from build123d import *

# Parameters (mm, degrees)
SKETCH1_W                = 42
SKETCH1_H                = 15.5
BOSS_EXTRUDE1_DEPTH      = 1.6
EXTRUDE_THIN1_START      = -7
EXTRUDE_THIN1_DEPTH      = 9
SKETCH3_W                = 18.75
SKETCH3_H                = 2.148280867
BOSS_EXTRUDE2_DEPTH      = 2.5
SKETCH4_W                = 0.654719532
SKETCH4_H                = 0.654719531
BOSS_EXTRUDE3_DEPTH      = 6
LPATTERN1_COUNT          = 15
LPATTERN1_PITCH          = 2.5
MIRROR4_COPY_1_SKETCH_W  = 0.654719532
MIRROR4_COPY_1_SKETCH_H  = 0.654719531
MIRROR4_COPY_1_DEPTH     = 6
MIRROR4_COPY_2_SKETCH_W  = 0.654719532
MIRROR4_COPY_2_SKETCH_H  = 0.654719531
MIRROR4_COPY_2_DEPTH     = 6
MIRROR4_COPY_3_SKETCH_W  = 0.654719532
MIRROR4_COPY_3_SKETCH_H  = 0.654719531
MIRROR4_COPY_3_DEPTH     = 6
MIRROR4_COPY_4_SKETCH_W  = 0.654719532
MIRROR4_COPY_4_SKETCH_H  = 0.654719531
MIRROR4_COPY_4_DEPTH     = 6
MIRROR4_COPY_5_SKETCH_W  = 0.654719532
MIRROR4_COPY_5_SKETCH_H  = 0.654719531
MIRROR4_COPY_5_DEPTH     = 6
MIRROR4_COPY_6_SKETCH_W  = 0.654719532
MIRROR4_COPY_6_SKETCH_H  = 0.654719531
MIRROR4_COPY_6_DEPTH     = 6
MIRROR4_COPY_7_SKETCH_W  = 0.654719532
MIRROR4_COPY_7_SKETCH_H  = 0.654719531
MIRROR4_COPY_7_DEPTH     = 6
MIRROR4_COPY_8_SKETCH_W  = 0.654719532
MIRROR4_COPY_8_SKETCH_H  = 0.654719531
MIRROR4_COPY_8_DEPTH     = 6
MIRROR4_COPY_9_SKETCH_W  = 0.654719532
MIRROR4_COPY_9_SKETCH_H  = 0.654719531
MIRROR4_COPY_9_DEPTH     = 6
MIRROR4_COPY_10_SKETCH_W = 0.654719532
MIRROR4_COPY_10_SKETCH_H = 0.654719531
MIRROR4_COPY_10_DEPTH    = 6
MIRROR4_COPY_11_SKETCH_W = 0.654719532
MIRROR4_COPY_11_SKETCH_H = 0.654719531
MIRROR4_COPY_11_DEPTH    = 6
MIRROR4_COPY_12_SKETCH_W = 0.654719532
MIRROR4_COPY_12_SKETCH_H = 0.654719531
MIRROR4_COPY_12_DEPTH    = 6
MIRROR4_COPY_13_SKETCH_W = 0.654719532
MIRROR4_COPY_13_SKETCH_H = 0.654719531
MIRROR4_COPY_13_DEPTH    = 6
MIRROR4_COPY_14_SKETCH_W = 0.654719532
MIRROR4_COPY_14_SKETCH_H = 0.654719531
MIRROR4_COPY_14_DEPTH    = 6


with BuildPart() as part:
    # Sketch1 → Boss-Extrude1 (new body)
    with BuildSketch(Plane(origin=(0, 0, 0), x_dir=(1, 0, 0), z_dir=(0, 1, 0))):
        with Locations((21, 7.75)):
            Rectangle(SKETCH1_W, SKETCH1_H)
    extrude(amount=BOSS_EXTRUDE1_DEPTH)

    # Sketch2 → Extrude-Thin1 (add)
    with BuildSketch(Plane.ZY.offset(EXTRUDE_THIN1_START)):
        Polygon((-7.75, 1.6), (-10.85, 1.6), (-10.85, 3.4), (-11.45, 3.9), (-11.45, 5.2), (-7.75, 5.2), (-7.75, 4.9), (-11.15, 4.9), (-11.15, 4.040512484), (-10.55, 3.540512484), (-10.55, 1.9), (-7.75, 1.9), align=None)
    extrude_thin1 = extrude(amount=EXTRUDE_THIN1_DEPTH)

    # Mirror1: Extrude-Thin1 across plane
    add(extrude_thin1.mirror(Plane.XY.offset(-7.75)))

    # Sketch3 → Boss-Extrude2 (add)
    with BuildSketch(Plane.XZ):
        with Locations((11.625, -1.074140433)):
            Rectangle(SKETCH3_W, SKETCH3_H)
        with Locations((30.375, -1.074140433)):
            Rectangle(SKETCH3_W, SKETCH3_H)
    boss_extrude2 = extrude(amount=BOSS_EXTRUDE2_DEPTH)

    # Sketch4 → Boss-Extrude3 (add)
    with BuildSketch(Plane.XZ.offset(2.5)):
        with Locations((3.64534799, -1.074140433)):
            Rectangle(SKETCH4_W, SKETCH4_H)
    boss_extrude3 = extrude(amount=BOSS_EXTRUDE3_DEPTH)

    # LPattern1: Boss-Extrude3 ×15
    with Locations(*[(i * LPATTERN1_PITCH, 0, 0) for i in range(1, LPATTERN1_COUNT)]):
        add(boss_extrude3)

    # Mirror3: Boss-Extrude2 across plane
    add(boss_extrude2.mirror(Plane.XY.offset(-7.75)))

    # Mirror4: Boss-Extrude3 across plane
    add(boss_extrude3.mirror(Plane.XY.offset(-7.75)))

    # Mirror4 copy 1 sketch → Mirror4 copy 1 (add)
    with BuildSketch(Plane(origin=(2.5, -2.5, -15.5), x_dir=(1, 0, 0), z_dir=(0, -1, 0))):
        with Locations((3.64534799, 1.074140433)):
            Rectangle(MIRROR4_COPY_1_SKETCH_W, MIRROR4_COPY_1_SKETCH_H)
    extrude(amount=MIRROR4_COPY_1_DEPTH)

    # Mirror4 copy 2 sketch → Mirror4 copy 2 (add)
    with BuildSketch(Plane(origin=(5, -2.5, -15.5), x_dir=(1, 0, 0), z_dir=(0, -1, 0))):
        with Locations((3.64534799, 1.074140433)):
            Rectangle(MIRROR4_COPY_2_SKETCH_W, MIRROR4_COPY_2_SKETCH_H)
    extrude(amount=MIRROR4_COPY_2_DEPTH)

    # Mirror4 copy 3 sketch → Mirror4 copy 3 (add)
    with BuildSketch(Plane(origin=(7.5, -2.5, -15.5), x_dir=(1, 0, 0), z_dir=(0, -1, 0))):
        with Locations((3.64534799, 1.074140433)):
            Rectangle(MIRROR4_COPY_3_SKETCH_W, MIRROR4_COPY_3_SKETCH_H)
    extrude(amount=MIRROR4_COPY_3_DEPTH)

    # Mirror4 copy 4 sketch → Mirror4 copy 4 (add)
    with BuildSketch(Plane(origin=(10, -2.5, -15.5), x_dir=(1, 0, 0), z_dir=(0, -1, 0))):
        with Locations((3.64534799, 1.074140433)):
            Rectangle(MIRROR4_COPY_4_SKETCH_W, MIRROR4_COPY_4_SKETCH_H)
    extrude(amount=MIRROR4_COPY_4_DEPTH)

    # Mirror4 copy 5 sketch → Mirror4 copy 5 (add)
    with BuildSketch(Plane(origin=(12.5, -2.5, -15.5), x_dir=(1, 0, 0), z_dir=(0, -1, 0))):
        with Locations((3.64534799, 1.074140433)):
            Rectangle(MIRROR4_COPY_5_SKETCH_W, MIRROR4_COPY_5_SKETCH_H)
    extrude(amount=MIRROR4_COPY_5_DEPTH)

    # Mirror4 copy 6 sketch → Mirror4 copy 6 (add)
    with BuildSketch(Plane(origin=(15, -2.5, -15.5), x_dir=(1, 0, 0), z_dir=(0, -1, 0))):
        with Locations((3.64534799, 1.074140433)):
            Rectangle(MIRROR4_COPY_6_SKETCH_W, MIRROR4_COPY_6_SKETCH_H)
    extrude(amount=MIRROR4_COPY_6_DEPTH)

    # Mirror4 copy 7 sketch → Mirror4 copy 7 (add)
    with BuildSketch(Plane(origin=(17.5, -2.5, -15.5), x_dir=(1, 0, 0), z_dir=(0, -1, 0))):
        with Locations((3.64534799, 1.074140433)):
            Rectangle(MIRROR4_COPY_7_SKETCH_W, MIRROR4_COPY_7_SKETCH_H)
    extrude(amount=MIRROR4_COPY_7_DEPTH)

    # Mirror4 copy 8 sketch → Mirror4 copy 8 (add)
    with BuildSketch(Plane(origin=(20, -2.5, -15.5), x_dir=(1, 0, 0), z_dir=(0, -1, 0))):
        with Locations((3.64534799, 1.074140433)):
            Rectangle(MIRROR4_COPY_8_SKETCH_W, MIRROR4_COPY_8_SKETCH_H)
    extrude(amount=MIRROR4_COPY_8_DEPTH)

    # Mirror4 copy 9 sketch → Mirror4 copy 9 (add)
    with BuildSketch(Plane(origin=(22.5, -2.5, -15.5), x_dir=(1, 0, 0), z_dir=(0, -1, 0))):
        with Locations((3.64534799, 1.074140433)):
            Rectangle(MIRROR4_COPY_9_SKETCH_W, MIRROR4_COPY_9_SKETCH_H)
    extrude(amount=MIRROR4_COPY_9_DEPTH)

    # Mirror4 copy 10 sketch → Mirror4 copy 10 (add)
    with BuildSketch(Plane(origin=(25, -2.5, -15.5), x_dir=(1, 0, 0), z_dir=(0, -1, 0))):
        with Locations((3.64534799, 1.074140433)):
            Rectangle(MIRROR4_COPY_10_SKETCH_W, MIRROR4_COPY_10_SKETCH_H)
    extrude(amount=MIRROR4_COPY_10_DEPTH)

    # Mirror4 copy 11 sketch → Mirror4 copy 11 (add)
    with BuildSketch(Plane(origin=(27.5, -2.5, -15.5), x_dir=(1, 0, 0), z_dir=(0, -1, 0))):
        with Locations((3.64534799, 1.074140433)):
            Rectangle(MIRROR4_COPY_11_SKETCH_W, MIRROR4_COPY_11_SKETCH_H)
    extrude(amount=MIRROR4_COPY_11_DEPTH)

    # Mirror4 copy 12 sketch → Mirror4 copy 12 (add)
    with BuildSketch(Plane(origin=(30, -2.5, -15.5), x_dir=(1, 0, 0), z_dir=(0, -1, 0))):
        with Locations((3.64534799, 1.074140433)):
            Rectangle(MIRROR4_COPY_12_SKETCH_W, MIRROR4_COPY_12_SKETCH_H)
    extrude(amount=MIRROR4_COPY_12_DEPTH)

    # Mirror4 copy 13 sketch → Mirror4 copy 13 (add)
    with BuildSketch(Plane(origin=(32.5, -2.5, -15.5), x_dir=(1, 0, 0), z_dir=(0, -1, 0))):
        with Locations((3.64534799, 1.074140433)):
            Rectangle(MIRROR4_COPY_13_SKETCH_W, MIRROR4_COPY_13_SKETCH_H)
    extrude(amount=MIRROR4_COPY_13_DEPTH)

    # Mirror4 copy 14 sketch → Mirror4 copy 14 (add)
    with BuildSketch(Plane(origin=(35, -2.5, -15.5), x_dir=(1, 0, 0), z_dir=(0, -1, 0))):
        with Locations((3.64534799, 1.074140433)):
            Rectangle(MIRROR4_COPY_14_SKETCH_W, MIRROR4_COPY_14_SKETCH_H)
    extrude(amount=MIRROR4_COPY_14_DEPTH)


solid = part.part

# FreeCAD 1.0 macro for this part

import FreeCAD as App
import Part
import Sketcher


def add_polygon(sketch, points):
    """Adds a closed chain of lines whose ends are joined by coincident constraints."""
    first, n = sketch.GeometryCount, len(points)
    for a, b in zip(points, points[1:] + points[:1]):
        sketch.addGeometry(Part.LineSegment(App.Vector(*a, 0), App.Vector(*b, 0)), False)
    for i in range(n):
        sketch.addConstraint(Sketcher.Constraint("Coincident", first + i, 2, first + (i + 1) % n, 1))

doc = App.newDocument("Part")
body = doc.addObject("PartDesign::Body", "Body")

# Sketch on XZ plane
sketch1 = body.newObject("Sketcher::SketchObject", "Sketch")
sketch1.AttachmentSupport = (doc.getObject("XZ_Plane"), [""])
sketch1.MapMode = "FlatFace"
add_polygon(sketch1, [(0, -16), (0, 0), (42, 0), (42, -16)])  # lines 0-3
sketch1.addConstraint(Sketcher.Constraint("Vertical", 0))
sketch1.addConstraint(Sketcher.Constraint("Horizontal", 1))
sketch1.addConstraint(Sketcher.Constraint("Vertical", 2))
sketch1.addConstraint(Sketcher.Constraint("Horizontal", 3))
sketch1.addConstraint(Sketcher.Constraint("Coincident", 0, 2, -1, 1))
sketch1.addConstraint(Sketcher.Constraint("DistanceX", 1, 1, 1, 2, 42.0))
sketch1.addConstraint(Sketcher.Constraint("DistanceY", 0, 1, 0, 2, 15.5))
pad1 = body.newObject("PartDesign::Pad", "Pad")
pad1.Profile = sketch1
pad1.Length = 1.6
pad1.Reversed = True

# Sketch on YZ plane
sketch2 = body.newObject("Sketcher::SketchObject", "Sketch001")
sketch2.AttachmentSupport = (doc.getObject("YZ_Plane"), [""])
sketch2.MapMode = "FlatFace"
sketch2.AttachmentOffset = App.Placement(App.Vector(0, 0, 7), App.Rotation())
add_polygon(sketch2, [(1.6, -10.85), (1.6, -7.75), (1.9, -7.75), (1.9, -10.55), (3.54, -10.55), (4.04, -11.15), (4.9, -11.15), (4.9, -7.75), (5.2, -7.75), (5.2, -11.45), (3.9, -11.45), (3.4, -10.85)])  # lines 0-11
sketch2.addConstraint(Sketcher.Constraint("Vertical", 0))
sketch2.addConstraint(Sketcher.Constraint("Horizontal", 1))
sketch2.addConstraint(Sketcher.Constraint("Vertical", 2))
sketch2.addConstraint(Sketcher.Constraint("Horizontal", 3))
sketch2.addConstraint(Sketcher.Constraint("Horizontal", 5))
sketch2.addConstraint(Sketcher.Constraint("Vertical", 6))
sketch2.addConstraint(Sketcher.Constraint("Horizontal", 7))
sketch2.addConstraint(Sketcher.Constraint("Vertical", 8))
sketch2.addConstraint(Sketcher.Constraint("Horizontal", 9))
sketch2.addConstraint(Sketcher.Constraint("Horizontal", 11))
sketch2.addConstraint(Sketcher.Constraint("Parallel", 4, 10))
sketch2.addConstraint(Sketcher.Constraint("Horizontal", 1, 2, 6, 2))
sketch2.addConstraint(Sketcher.Constraint("Equal", 1, 7))
sketch2.addConstraint(Sketcher.Constraint("Equal", 4, 10))
sketch2.addConstraint(Sketcher.Constraint("DistanceX", 1, 1, 1, 2, 0.3))
sketch2.addConstraint(Sketcher.Constraint("DistanceX", 9, 2, 9, 1, 1.3))
sketch2.addConstraint(Sketcher.Constraint("DistanceX", 11, 2, 11, 1, 1.8))
sketch2.addConstraint(Sketcher.Constraint("DistanceY", 0, 1, 0, 2, 3.1))
sketch2.addConstraint(Sketcher.Constraint("DistanceY", 2, 2, 2, 1, 2.8))
sketch2.addConstraint(Sketcher.Constraint("DistanceY", 6, 1, 6, 2, 3.4))
sketch2.addConstraint(Sketcher.Constraint("DistanceX", 2, 2, 5, 2, 3.0))
sketch2.addConstraint(Sketcher.Constraint("DistanceX", -1, 1, 0, 2, 1.6))
sketch2.addConstraint(Sketcher.Constraint("DistanceY", 0, 2, -1, 1, 7.75))
sketch2.addConstraint(Sketcher.Constraint("DistanceX", 3, 1, 3, 2, 1.640512))
pad2 = body.newObject("PartDesign::Pad", "Pad001")
pad2.Profile = sketch2
pad2.Length = 9
pad2.Reversed = True
doc.recompute()

datumplane = body.newObject("PartDesign::Plane", "DatumPlane")
datumplane.AttachmentSupport = (doc.getObject("XY_Plane"), [""])
datumplane.MapMode = "FlatFace"
datumplane.AttachmentOffset = App.Placement(App.Vector(0, 0, -7.75), App.Rotation())
mirrored = body.newObject("PartDesign::Mirrored", "Mirrored")
mirrored.Originals = [pad2]
mirrored.MirrorPlane = (datumplane, [""])
body.Tip = mirrored

# Sketch on XZ plane
sketch3 = body.newObject("Sketcher::SketchObject", "Sketch002")
sketch3.AttachmentSupport = (doc.getObject("XZ_Plane"), [""])
sketch3.MapMode = "FlatFace"
add_polygon(sketch3, [(2.2, 0), (2.2, -2.1), (39.8, -2.1), (39.8, 0)])  # lines 0-3
sketch3.addConstraint(Sketcher.Constraint("Vertical", 0))
sketch3.addConstraint(Sketcher.Constraint("Horizontal", 1))
sketch3.addConstraint(Sketcher.Constraint("Vertical", 2))
sketch3.addConstraint(Sketcher.Constraint("Horizontal", 3))
sketch3.addConstraint(Sketcher.Constraint("PointOnObject", 2, 2, -1))
sketch3.addConstraint(Sketcher.Constraint("DistanceX", 1, 1, 1, 2, 37.5))
sketch3.addConstraint(Sketcher.Constraint("DistanceX", -1, 1, 0, 2, 2.25))
sketch3.addConstraint(Sketcher.Constraint("DistanceY", 0, 2, 0, 1, 2.148281))
pad3 = body.newObject("PartDesign::Pad", "Pad002")
pad3.Profile = sketch3
pad3.Length = 2.5

# Sketch on XZ plane
sketch4 = body.newObject("Sketcher::SketchObject", "Sketch003")
sketch4.AttachmentSupport = (doc.getObject("XZ_Plane"), [""])
sketch4.MapMode = "FlatFace"
sketch4.AttachmentOffset = App.Placement(App.Vector(0, 0, 2.5), App.Rotation())
add_polygon(sketch4, [(3.3, -0.7), (3.3, -1.4), (4, -1.4), (4, -0.7)])  # lines 0-3
sketch4.addConstraint(Sketcher.Constraint("Vertical", 0))
sketch4.addConstraint(Sketcher.Constraint("Horizontal", 1))
sketch4.addConstraint(Sketcher.Constraint("Vertical", 2))
sketch4.addConstraint(Sketcher.Constraint("Horizontal", 3))
sketch4.addConstraint(Sketcher.Constraint("Equal", 3, 0))
sketch4.addConstraint(Sketcher.Constraint("DistanceX", 1, 1, 1, 2, 0.65472))
sketch4.addConstraint(Sketcher.Constraint("DistanceY", 0, 2, -1, 1, 1.4015))
sketch4.addConstraint(Sketcher.Constraint("DistanceX", -1, 1, 0, 2, 3.317988))
pad4 = body.newObject("PartDesign::Pad", "Pad003")
pad4.Profile = sketch4
pad4.Length = 6
doc.recompute()

linearpattern = body.newObject("PartDesign::LinearPattern", "LinearPattern")
linearpattern.Originals = [pad4]
linearpattern.Direction = (doc.getObject("X_Axis"), [""])
linearpattern.Mode = "offset"
linearpattern.Offset = 2.5
linearpattern.Occurrences = 15
body.Tip = linearpattern
doc.recompute()

datumplane2 = body.newObject("PartDesign::Plane", "DatumPlane001")
datumplane2.AttachmentSupport = (doc.getObject("XY_Plane"), [""])
datumplane2.MapMode = "FlatFace"
datumplane2.AttachmentOffset = App.Placement(App.Vector(0, 0, -7.75), App.Rotation())
mirrored2 = body.newObject("PartDesign::Mirrored", "Mirrored001")
mirrored2.Originals = [pad3]
mirrored2.MirrorPlane = (datumplane2, [""])
body.Tip = mirrored2
doc.recompute()

datumplane3 = body.newObject("PartDesign::Plane", "DatumPlane002")
datumplane3.AttachmentSupport = (doc.getObject("XY_Plane"), [""])
datumplane3.MapMode = "FlatFace"
datumplane3.AttachmentOffset = App.Placement(App.Vector(0, 0, -7.75), App.Rotation())
mirrored3 = body.newObject("PartDesign::Mirrored", "Mirrored002")
mirrored3.Originals = [pad4]
mirrored3.MirrorPlane = (datumplane3, [""])
body.Tip = mirrored3

# Sketch on XZ plane
sketch5 = body.newObject("Sketcher::SketchObject", "Sketch004")
sketch5.AttachmentSupport = (doc.getObject("XZ_Plane"), [""])
sketch5.MapMode = "FlatFace"
sketch5.AttachmentOffset = App.Placement(App.Vector(0, 0, 2.5), App.Rotation())
add_polygon(sketch5, [(5.8, -14.1), (5.8, -14.8), (6.5, -14.8), (6.5, -14.1)])  # lines 0-3
sketch5.addConstraint(Sketcher.Constraint("Vertical", 0))
sketch5.addConstraint(Sketcher.Constraint("Horizontal", 1))
sketch5.addConstraint(Sketcher.Constraint("Vertical", 2))
sketch5.addConstraint(Sketcher.Constraint("Horizontal", 3))
sketch5.addConstraint(Sketcher.Constraint("Equal", 3, 0))
sketch5.addConstraint(Sketcher.Constraint("DistanceX", 1, 1, 1, 2, 0.65472))
sketch5.addConstraint(Sketcher.Constraint("DistanceY", 2, 2, -1, 1, 14.0985))
sketch5.addConstraint(Sketcher.Constraint("DistanceX", -1, 1, 0, 2, 5.817988))
pad5 = body.newObject("PartDesign::Pad", "Pad004")
pad5.Profile = sketch5
pad5.Length = 6

# Sketch on XZ plane
sketch6 = body.newObject("Sketcher::SketchObject", "Sketch005")
sketch6.AttachmentSupport = (doc.getObject("XZ_Plane"), [""])
sketch6.MapMode = "FlatFace"
sketch6.AttachmentOffset = App.Placement(App.Vector(0, 0, 2.5), App.Rotation())
add_polygon(sketch6, [(8.3, -14.1), (8.3, -14.8), (9, -14.8), (9, -14.1)])  # lines 0-3
sketch6.addConstraint(Sketcher.Constraint("Vertical", 0))
sketch6.addConstraint(Sketcher.Constraint("Horizontal", 1))
sketch6.addConstraint(Sketcher.Constraint("Vertical", 2))
sketch6.addConstraint(Sketcher.Constraint("Horizontal", 3))
sketch6.addConstraint(Sketcher.Constraint("Equal", 3, 0))
sketch6.addConstraint(Sketcher.Constraint("DistanceX", 1, 1, 1, 2, 0.65472))
sketch6.addConstraint(Sketcher.Constraint("DistanceY", 2, 2, -1, 1, 14.0985))
sketch6.addConstraint(Sketcher.Constraint("DistanceX", -1, 1, 0, 2, 8.317988))
pad6 = body.newObject("PartDesign::Pad", "Pad005")
pad6.Profile = sketch6
pad6.Length = 6

# Sketch on XZ plane
sketch7 = body.newObject("Sketcher::SketchObject", "Sketch006")
sketch7.AttachmentSupport = (doc.getObject("XZ_Plane"), [""])
sketch7.MapMode = "FlatFace"
sketch7.AttachmentOffset = App.Placement(App.Vector(0, 0, 2.5), App.Rotation())
add_polygon(sketch7, [(10.8, -14.1), (10.8, -14.8), (11.5, -14.8), (11.5, -14.1)])  # lines 0-3
sketch7.addConstraint(Sketcher.Constraint("Vertical", 0))
sketch7.addConstraint(Sketcher.Constraint("Horizontal", 1))
sketch7.addConstraint(Sketcher.Constraint("Vertical", 2))
sketch7.addConstraint(Sketcher.Constraint("Horizontal", 3))
sketch7.addConstraint(Sketcher.Constraint("Equal", 3, 0))
sketch7.addConstraint(Sketcher.Constraint("DistanceX", 1, 1, 1, 2, 0.65472))
sketch7.addConstraint(Sketcher.Constraint("DistanceY", 2, 2, -1, 1, 14.0985))
sketch7.addConstraint(Sketcher.Constraint("DistanceX", -1, 1, 0, 2, 10.817988))
pad7 = body.newObject("PartDesign::Pad", "Pad006")
pad7.Profile = sketch7
pad7.Length = 6

# Sketch on XZ plane
sketch8 = body.newObject("Sketcher::SketchObject", "Sketch007")
sketch8.AttachmentSupport = (doc.getObject("XZ_Plane"), [""])
sketch8.MapMode = "FlatFace"
sketch8.AttachmentOffset = App.Placement(App.Vector(0, 0, 2.5), App.Rotation())
add_polygon(sketch8, [(13.3, -14.1), (13.3, -14.8), (14, -14.8), (14, -14.1)])  # lines 0-3
sketch8.addConstraint(Sketcher.Constraint("Vertical", 0))
sketch8.addConstraint(Sketcher.Constraint("Horizontal", 1))
sketch8.addConstraint(Sketcher.Constraint("Vertical", 2))
sketch8.addConstraint(Sketcher.Constraint("Horizontal", 3))
sketch8.addConstraint(Sketcher.Constraint("Equal", 3, 0))
sketch8.addConstraint(Sketcher.Constraint("DistanceX", 1, 1, 1, 2, 0.65472))
sketch8.addConstraint(Sketcher.Constraint("DistanceY", 2, 2, -1, 1, 14.0985))
sketch8.addConstraint(Sketcher.Constraint("DistanceX", -1, 1, 0, 2, 13.317988))
pad8 = body.newObject("PartDesign::Pad", "Pad007")
pad8.Profile = sketch8
pad8.Length = 6

# Sketch on XZ plane
sketch9 = body.newObject("Sketcher::SketchObject", "Sketch008")
sketch9.AttachmentSupport = (doc.getObject("XZ_Plane"), [""])
sketch9.MapMode = "FlatFace"
sketch9.AttachmentOffset = App.Placement(App.Vector(0, 0, 2.5), App.Rotation())
add_polygon(sketch9, [(15.8, -14.1), (15.8, -14.8), (16.5, -14.8), (16.5, -14.1)])  # lines 0-3
sketch9.addConstraint(Sketcher.Constraint("Vertical", 0))
sketch9.addConstraint(Sketcher.Constraint("Horizontal", 1))
sketch9.addConstraint(Sketcher.Constraint("Vertical", 2))
sketch9.addConstraint(Sketcher.Constraint("Horizontal", 3))
sketch9.addConstraint(Sketcher.Constraint("Equal", 3, 0))
sketch9.addConstraint(Sketcher.Constraint("DistanceX", 1, 1, 1, 2, 0.65472))
sketch9.addConstraint(Sketcher.Constraint("DistanceY", 2, 2, -1, 1, 14.0985))
sketch9.addConstraint(Sketcher.Constraint("DistanceX", -1, 1, 0, 2, 15.817988))
pad9 = body.newObject("PartDesign::Pad", "Pad008")
pad9.Profile = sketch9
pad9.Length = 6

# Sketch on XZ plane
sketch10 = body.newObject("Sketcher::SketchObject", "Sketch009")
sketch10.AttachmentSupport = (doc.getObject("XZ_Plane"), [""])
sketch10.MapMode = "FlatFace"
sketch10.AttachmentOffset = App.Placement(App.Vector(0, 0, 2.5), App.Rotation())
add_polygon(sketch10, [(18.3, -14.1), (18.3, -14.8), (19, -14.8), (19, -14.1)])  # lines 0-3
sketch10.addConstraint(Sketcher.Constraint("Vertical", 0))
sketch10.addConstraint(Sketcher.Constraint("Horizontal", 1))
sketch10.addConstraint(Sketcher.Constraint("Vertical", 2))
sketch10.addConstraint(Sketcher.Constraint("Horizontal", 3))
sketch10.addConstraint(Sketcher.Constraint("Equal", 3, 0))
sketch10.addConstraint(Sketcher.Constraint("DistanceX", 1, 1, 1, 2, 0.65472))
sketch10.addConstraint(Sketcher.Constraint("DistanceY", 2, 2, -1, 1, 14.0985))
sketch10.addConstraint(Sketcher.Constraint("DistanceX", -1, 1, 0, 2, 18.317988))
pad10 = body.newObject("PartDesign::Pad", "Pad009")
pad10.Profile = sketch10
pad10.Length = 6

# Sketch on XZ plane
sketch11 = body.newObject("Sketcher::SketchObject", "Sketch010")
sketch11.AttachmentSupport = (doc.getObject("XZ_Plane"), [""])
sketch11.MapMode = "FlatFace"
sketch11.AttachmentOffset = App.Placement(App.Vector(0, 0, 2.5), App.Rotation())
add_polygon(sketch11, [(20.8, -14.1), (20.8, -14.8), (21.5, -14.8), (21.5, -14.1)])  # lines 0-3
sketch11.addConstraint(Sketcher.Constraint("Vertical", 0))
sketch11.addConstraint(Sketcher.Constraint("Horizontal", 1))
sketch11.addConstraint(Sketcher.Constraint("Vertical", 2))
sketch11.addConstraint(Sketcher.Constraint("Horizontal", 3))
sketch11.addConstraint(Sketcher.Constraint("Equal", 3, 0))
sketch11.addConstraint(Sketcher.Constraint("DistanceX", 1, 1, 1, 2, 0.65472))
sketch11.addConstraint(Sketcher.Constraint("DistanceY", 2, 2, -1, 1, 14.0985))
sketch11.addConstraint(Sketcher.Constraint("DistanceX", -1, 1, 0, 2, 20.817988))
pad11 = body.newObject("PartDesign::Pad", "Pad010")
pad11.Profile = sketch11
pad11.Length = 6

# Sketch on XZ plane
sketch12 = body.newObject("Sketcher::SketchObject", "Sketch011")
sketch12.AttachmentSupport = (doc.getObject("XZ_Plane"), [""])
sketch12.MapMode = "FlatFace"
sketch12.AttachmentOffset = App.Placement(App.Vector(0, 0, 2.5), App.Rotation())
add_polygon(sketch12, [(23.3, -14.1), (23.3, -14.8), (24, -14.8), (24, -14.1)])  # lines 0-3
sketch12.addConstraint(Sketcher.Constraint("Vertical", 0))
sketch12.addConstraint(Sketcher.Constraint("Horizontal", 1))
sketch12.addConstraint(Sketcher.Constraint("Vertical", 2))
sketch12.addConstraint(Sketcher.Constraint("Horizontal", 3))
sketch12.addConstraint(Sketcher.Constraint("Equal", 3, 0))
sketch12.addConstraint(Sketcher.Constraint("DistanceX", 1, 1, 1, 2, 0.65472))
sketch12.addConstraint(Sketcher.Constraint("DistanceY", 2, 2, -1, 1, 14.0985))
sketch12.addConstraint(Sketcher.Constraint("DistanceX", -1, 1, 0, 2, 23.317988))
pad12 = body.newObject("PartDesign::Pad", "Pad011")
pad12.Profile = sketch12
pad12.Length = 6

# Sketch on XZ plane
sketch13 = body.newObject("Sketcher::SketchObject", "Sketch012")
sketch13.AttachmentSupport = (doc.getObject("XZ_Plane"), [""])
sketch13.MapMode = "FlatFace"
sketch13.AttachmentOffset = App.Placement(App.Vector(0, 0, 2.5), App.Rotation())
add_polygon(sketch13, [(25.8, -14.1), (25.8, -14.8), (26.5, -14.8), (26.5, -14.1)])  # lines 0-3
sketch13.addConstraint(Sketcher.Constraint("Vertical", 0))
sketch13.addConstraint(Sketcher.Constraint("Horizontal", 1))
sketch13.addConstraint(Sketcher.Constraint("Vertical", 2))
sketch13.addConstraint(Sketcher.Constraint("Horizontal", 3))
sketch13.addConstraint(Sketcher.Constraint("Equal", 3, 0))
sketch13.addConstraint(Sketcher.Constraint("DistanceX", 1, 1, 1, 2, 0.65472))
sketch13.addConstraint(Sketcher.Constraint("DistanceY", 2, 2, -1, 1, 14.0985))
sketch13.addConstraint(Sketcher.Constraint("DistanceX", -1, 1, 0, 2, 25.817988))
pad13 = body.newObject("PartDesign::Pad", "Pad012")
pad13.Profile = sketch13
pad13.Length = 6

# Sketch on XZ plane
sketch14 = body.newObject("Sketcher::SketchObject", "Sketch013")
sketch14.AttachmentSupport = (doc.getObject("XZ_Plane"), [""])
sketch14.MapMode = "FlatFace"
sketch14.AttachmentOffset = App.Placement(App.Vector(0, 0, 2.5), App.Rotation())
add_polygon(sketch14, [(28.3, -14.1), (28.3, -14.8), (29, -14.8), (29, -14.1)])  # lines 0-3
sketch14.addConstraint(Sketcher.Constraint("Vertical", 0))
sketch14.addConstraint(Sketcher.Constraint("Horizontal", 1))
sketch14.addConstraint(Sketcher.Constraint("Vertical", 2))
sketch14.addConstraint(Sketcher.Constraint("Horizontal", 3))
sketch14.addConstraint(Sketcher.Constraint("Equal", 3, 0))
sketch14.addConstraint(Sketcher.Constraint("DistanceX", 1, 1, 1, 2, 0.65472))
sketch14.addConstraint(Sketcher.Constraint("DistanceY", 2, 2, -1, 1, 14.0985))
sketch14.addConstraint(Sketcher.Constraint("DistanceX", -1, 1, 0, 2, 28.317988))
pad14 = body.newObject("PartDesign::Pad", "Pad013")
pad14.Profile = sketch14
pad14.Length = 6

# Sketch on XZ plane
sketch15 = body.newObject("Sketcher::SketchObject", "Sketch014")
sketch15.AttachmentSupport = (doc.getObject("XZ_Plane"), [""])
sketch15.MapMode = "FlatFace"
sketch15.AttachmentOffset = App.Placement(App.Vector(0, 0, 2.5), App.Rotation())
add_polygon(sketch15, [(30.8, -14.1), (30.8, -14.8), (31.5, -14.8), (31.5, -14.1)])  # lines 0-3
sketch15.addConstraint(Sketcher.Constraint("Vertical", 0))
sketch15.addConstraint(Sketcher.Constraint("Horizontal", 1))
sketch15.addConstraint(Sketcher.Constraint("Vertical", 2))
sketch15.addConstraint(Sketcher.Constraint("Horizontal", 3))
sketch15.addConstraint(Sketcher.Constraint("Equal", 3, 0))
sketch15.addConstraint(Sketcher.Constraint("DistanceX", 1, 1, 1, 2, 0.65472))
sketch15.addConstraint(Sketcher.Constraint("DistanceY", 2, 2, -1, 1, 14.0985))
sketch15.addConstraint(Sketcher.Constraint("DistanceX", -1, 1, 0, 2, 30.817988))
pad15 = body.newObject("PartDesign::Pad", "Pad014")
pad15.Profile = sketch15
pad15.Length = 6

# Sketch on XZ plane
sketch16 = body.newObject("Sketcher::SketchObject", "Sketch015")
sketch16.AttachmentSupport = (doc.getObject("XZ_Plane"), [""])
sketch16.MapMode = "FlatFace"
sketch16.AttachmentOffset = App.Placement(App.Vector(0, 0, 2.5), App.Rotation())
add_polygon(sketch16, [(33.3, -14.1), (33.3, -14.8), (34, -14.8), (34, -14.1)])  # lines 0-3
sketch16.addConstraint(Sketcher.Constraint("Vertical", 0))
sketch16.addConstraint(Sketcher.Constraint("Horizontal", 1))
sketch16.addConstraint(Sketcher.Constraint("Vertical", 2))
sketch16.addConstraint(Sketcher.Constraint("Horizontal", 3))
sketch16.addConstraint(Sketcher.Constraint("Equal", 3, 0))
sketch16.addConstraint(Sketcher.Constraint("DistanceX", 1, 1, 1, 2, 0.65472))
sketch16.addConstraint(Sketcher.Constraint("DistanceY", 2, 2, -1, 1, 14.0985))
sketch16.addConstraint(Sketcher.Constraint("DistanceX", -1, 1, 0, 2, 33.317988))
pad16 = body.newObject("PartDesign::Pad", "Pad015")
pad16.Profile = sketch16
pad16.Length = 6

# Sketch on XZ plane
sketch17 = body.newObject("Sketcher::SketchObject", "Sketch016")
sketch17.AttachmentSupport = (doc.getObject("XZ_Plane"), [""])
sketch17.MapMode = "FlatFace"
sketch17.AttachmentOffset = App.Placement(App.Vector(0, 0, 2.5), App.Rotation())
add_polygon(sketch17, [(35.8, -14.1), (35.8, -14.8), (36.5, -14.8), (36.5, -14.1)])  # lines 0-3
sketch17.addConstraint(Sketcher.Constraint("Vertical", 0))
sketch17.addConstraint(Sketcher.Constraint("Horizontal", 1))
sketch17.addConstraint(Sketcher.Constraint("Vertical", 2))
sketch17.addConstraint(Sketcher.Constraint("Horizontal", 3))
sketch17.addConstraint(Sketcher.Constraint("Equal", 3, 0))
sketch17.addConstraint(Sketcher.Constraint("DistanceX", 1, 1, 1, 2, 0.65472))
sketch17.addConstraint(Sketcher.Constraint("DistanceY", 2, 2, -1, 1, 14.0985))
sketch17.addConstraint(Sketcher.Constraint("DistanceX", -1, 1, 0, 2, 35.817988))
pad17 = body.newObject("PartDesign::Pad", "Pad016")
pad17.Profile = sketch17
pad17.Length = 6

# Sketch on XZ plane
sketch18 = body.newObject("Sketcher::SketchObject", "Sketch017")
sketch18.AttachmentSupport = (doc.getObject("XZ_Plane"), [""])
sketch18.MapMode = "FlatFace"
sketch18.AttachmentOffset = App.Placement(App.Vector(0, 0, 2.5), App.Rotation())
add_polygon(sketch18, [(38.3, -14.1), (38.3, -14.8), (39, -14.8), (39, -14.1)])  # lines 0-3
sketch18.addConstraint(Sketcher.Constraint("Vertical", 0))
sketch18.addConstraint(Sketcher.Constraint("Horizontal", 1))
sketch18.addConstraint(Sketcher.Constraint("Vertical", 2))
sketch18.addConstraint(Sketcher.Constraint("Horizontal", 3))
sketch18.addConstraint(Sketcher.Constraint("Equal", 3, 0))
sketch18.addConstraint(Sketcher.Constraint("DistanceX", 1, 1, 1, 2, 0.65472))
sketch18.addConstraint(Sketcher.Constraint("DistanceY", 2, 2, -1, 1, 14.0985))
sketch18.addConstraint(Sketcher.Constraint("DistanceX", -1, 1, 0, 2, 38.317988))
pad18 = body.newObject("PartDesign::Pad", "Pad017")
pad18.Profile = sketch18
pad18.Length = 6

doc.recompute()
